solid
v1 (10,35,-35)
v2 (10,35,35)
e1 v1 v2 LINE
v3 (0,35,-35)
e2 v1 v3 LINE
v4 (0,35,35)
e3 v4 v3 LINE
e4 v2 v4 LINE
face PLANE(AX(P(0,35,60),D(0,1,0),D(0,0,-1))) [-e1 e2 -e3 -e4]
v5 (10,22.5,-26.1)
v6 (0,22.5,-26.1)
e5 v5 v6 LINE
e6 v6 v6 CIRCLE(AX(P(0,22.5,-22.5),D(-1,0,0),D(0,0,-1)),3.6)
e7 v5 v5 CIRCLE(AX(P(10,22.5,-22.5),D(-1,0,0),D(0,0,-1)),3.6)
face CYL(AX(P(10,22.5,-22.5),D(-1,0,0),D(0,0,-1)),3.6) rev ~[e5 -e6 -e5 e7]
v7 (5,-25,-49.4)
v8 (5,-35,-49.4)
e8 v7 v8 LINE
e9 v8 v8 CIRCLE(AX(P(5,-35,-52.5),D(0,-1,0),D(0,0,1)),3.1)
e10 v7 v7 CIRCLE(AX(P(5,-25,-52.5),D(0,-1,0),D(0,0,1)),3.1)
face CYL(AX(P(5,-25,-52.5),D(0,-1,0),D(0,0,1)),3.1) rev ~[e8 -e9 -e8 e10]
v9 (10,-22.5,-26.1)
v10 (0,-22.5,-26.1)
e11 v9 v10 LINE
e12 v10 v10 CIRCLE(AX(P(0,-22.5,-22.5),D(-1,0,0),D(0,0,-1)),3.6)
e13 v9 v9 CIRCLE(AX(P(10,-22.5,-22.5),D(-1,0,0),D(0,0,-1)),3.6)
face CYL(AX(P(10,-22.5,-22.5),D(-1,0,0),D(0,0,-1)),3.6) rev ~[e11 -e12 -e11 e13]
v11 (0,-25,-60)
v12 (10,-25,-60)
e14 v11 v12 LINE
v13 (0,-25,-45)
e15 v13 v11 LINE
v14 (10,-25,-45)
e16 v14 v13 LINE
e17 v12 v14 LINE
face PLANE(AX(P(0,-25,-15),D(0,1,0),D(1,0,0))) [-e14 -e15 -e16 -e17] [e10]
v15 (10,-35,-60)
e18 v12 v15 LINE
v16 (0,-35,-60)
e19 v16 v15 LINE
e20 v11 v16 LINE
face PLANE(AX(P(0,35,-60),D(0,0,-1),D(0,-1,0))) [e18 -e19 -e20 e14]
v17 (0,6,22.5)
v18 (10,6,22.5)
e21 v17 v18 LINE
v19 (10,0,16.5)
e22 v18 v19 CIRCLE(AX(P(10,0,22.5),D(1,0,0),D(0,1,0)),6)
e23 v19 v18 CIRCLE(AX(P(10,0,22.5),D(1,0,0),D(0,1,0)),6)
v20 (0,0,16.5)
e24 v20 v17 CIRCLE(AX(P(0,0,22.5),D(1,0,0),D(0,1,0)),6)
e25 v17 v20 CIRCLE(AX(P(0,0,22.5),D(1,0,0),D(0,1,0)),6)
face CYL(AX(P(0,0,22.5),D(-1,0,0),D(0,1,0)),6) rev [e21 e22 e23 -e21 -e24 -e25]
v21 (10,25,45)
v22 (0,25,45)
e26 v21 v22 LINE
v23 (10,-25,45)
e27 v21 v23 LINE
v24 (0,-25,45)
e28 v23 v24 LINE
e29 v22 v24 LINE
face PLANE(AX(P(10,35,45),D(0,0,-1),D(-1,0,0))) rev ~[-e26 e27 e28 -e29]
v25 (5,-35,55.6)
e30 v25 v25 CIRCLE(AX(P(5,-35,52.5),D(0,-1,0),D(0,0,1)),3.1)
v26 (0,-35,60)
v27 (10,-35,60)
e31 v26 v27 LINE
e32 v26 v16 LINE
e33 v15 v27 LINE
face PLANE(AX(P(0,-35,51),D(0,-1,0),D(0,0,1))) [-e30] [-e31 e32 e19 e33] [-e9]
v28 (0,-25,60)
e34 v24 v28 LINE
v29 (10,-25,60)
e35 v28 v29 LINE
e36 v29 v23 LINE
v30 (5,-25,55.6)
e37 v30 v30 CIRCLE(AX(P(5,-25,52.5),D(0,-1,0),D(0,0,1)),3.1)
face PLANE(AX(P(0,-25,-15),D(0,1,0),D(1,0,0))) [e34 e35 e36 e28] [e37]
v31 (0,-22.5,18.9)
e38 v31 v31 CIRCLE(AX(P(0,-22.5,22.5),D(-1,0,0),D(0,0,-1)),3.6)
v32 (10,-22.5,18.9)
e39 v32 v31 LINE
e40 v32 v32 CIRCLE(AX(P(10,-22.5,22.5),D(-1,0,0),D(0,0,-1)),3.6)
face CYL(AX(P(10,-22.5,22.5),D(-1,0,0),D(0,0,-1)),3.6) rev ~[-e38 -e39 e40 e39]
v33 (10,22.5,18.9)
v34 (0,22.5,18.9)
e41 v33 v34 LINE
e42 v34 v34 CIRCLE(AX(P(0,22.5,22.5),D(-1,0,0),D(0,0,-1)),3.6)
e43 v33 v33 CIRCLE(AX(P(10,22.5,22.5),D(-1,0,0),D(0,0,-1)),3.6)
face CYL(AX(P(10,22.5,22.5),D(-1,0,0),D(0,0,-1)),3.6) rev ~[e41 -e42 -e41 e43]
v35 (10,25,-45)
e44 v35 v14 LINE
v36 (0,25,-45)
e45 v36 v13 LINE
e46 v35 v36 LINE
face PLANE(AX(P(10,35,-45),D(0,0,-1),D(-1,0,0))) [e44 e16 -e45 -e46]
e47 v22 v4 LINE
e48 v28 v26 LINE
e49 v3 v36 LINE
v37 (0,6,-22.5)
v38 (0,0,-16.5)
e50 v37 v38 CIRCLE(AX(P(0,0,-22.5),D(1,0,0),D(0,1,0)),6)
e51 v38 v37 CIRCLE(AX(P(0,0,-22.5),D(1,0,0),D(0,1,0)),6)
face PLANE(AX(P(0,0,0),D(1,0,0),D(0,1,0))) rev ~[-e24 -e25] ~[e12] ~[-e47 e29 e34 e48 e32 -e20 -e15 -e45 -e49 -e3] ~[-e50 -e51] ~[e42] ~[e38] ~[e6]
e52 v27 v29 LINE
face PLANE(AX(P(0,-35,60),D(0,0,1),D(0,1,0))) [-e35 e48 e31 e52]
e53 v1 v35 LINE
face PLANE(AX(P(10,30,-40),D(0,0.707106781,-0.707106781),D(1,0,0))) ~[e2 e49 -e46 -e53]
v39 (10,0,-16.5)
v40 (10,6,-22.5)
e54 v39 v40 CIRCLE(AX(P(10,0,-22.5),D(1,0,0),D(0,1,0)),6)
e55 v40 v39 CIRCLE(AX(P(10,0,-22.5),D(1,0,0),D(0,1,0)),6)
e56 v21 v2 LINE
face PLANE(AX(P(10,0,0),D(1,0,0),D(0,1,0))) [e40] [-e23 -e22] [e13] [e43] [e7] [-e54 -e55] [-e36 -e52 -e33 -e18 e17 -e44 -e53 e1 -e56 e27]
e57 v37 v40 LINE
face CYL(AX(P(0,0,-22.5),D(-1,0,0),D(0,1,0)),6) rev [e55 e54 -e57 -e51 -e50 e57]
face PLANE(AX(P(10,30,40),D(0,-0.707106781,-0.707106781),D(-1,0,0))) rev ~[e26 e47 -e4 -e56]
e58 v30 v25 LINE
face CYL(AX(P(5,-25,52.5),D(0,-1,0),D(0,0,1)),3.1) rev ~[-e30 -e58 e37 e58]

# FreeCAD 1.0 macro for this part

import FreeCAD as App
import Part
import Sketcher
Q = App.Units.Quantity


def edges_at(feature, points):
    """Names of the edges that pass closest to the given points."""
    edges = feature.Shape.Edges
    near = lambda p: min(range(len(edges)), key=lambda i: edges[i].distToShape(Part.Vertex(*p))[0])
    return sorted({f"Edge{near(p) + 1}" for p in points})

doc = App.newDocument("Part")
params = doc.addObject("Spreadsheet::Sheet", "Params")
for row, (alias, value) in enumerate([
    ("sketch1_diameter", "12 mm"),
    ("sketch1_height", "120 mm"),
    ("pad1_length", "10 mm"),
    ("sketch2_height", "15 mm"),
    ("sketch2_width", "10 mm"),
    ("pocket1_length", "60 mm"),
    ("sketch3_diameter", "7.2 mm"),
    ("hole_diameter", "7.2 mm"),
    ("sketch4_diameter", "6.2 mm"),
    ("hole2_diameter", "6.2 mm"),
    ("chamfer_size", "10 mm"),
], start=1):
    params.set(f"A{row}", alias)
    params.set(f"B{row}", "=" + value)
    params.setAlias(f"B{row}", alias)

body = doc.addObject("PartDesign::Body", "Body")

sketch1 = doc.addObject("Sketcher::SketchObject", "Sketch")
body.addObject(sketch1)
sketch1.AttachmentSupport = (doc.YZ_Plane, [""])
sketch1.MapMode = "FlatFace"
sketch1.addGeometry([
    Part.LineSegment(App.Vector(-35, 60, 0), App.Vector(-35, -60, 0)),
    Part.LineSegment(App.Vector(-35, -60, 0), App.Vector(35, -60, 0)),
    Part.LineSegment(App.Vector(35, -60, 0), App.Vector(35, 60, 0)),
    Part.LineSegment(App.Vector(35, 60, 0), App.Vector(-35, 60, 0)),
    Part.Circle(App.Vector(0, -22, 0), App.Vector(0, 0, 1), 6),
    Part.Circle(App.Vector(0, 22, 0), App.Vector(0, 0, 1), 6),
], False)
sketch1.addConstraint([
    Sketcher.Constraint("Coincident", 0, 2, 1, 1),
    Sketcher.Constraint("Coincident", 1, 2, 2, 1),
    Sketcher.Constraint("Coincident", 2, 2, 3, 1),
    Sketcher.Constraint("Coincident", 3, 2, 0, 1),
    Sketcher.Constraint("Vertical", 0),
    Sketcher.Constraint("Horizontal", 1),
    Sketcher.Constraint("Vertical", 2),
    Sketcher.Constraint("Horizontal", 3),
    Sketcher.Constraint("Equal", 4, 5),
    Sketcher.Constraint("Symmetric", 4, 3, 5, 3, -1, 1),
    Sketcher.Constraint("Symmetric", 0, 2, 2, 2, -1, 1),
    Sketcher.Constraint("PointOnObject", 4, 3, -2),
    Sketcher.Constraint("Diameter", 4, Q("12 mm")),
    Sketcher.Constraint("DistanceY", 0, 2, 0, 1, Q("120 mm")),
    Sketcher.Constraint("DistanceX", 0, 2, -1, 1, Q("35 mm")),
    Sketcher.Constraint("DistanceY", 4, 3, 5, 3, Q("45 mm")),
])
sketch1.setExpression("Constraints[12]", "Params.sketch1_diameter")
sketch1.setExpression("Constraints[13]", "Params.sketch1_height")
pad1 = doc.addObject("PartDesign::Pad", "Pad")
body.addObject(pad1)
pad1.Profile = sketch1
pad1.setExpression("Length", "Params.pad1_length")

sketch2 = doc.addObject("Sketcher::SketchObject", "Sketch001")
body.addObject(sketch2)
sketch2.AttachmentSupport = (doc.XZ_Plane, [""])
sketch2.MapMode = "FlatFace"
sketch2.AttachmentOffset = App.Placement(App.Vector(0, 0, -35), App.Rotation())
sketch2.addGeometry([
    Part.LineSegment(App.Vector(10, -45, 0), App.Vector(10, -60, 0)),
    Part.LineSegment(App.Vector(10, -60, 0), App.Vector(0, -60, 0)),
    Part.LineSegment(App.Vector(0, -60, 0), App.Vector(0, -45, 0)),
    Part.LineSegment(App.Vector(0, -45, 0), App.Vector(10, -45, 0)),
    Part.LineSegment(App.Vector(10, 60, 0), App.Vector(10, 45, 0)),
    Part.LineSegment(App.Vector(10, 45, 0), App.Vector(0, 45, 0)),
    Part.LineSegment(App.Vector(0, 45, 0), App.Vector(0, 60, 0)),
    Part.LineSegment(App.Vector(0, 60, 0), App.Vector(10, 60, 0)),
], False)
sketch2.addConstraint([
    Sketcher.Constraint("Coincident", 0, 2, 1, 1),
    Sketcher.Constraint("Coincident", 1, 2, 2, 1),
    Sketcher.Constraint("Coincident", 2, 2, 3, 1),
    Sketcher.Constraint("Coincident", 3, 2, 0, 1),
    Sketcher.Constraint("Coincident", 4, 2, 5, 1),
    Sketcher.Constraint("Coincident", 5, 2, 6, 1),
    Sketcher.Constraint("Coincident", 6, 2, 7, 1),
    Sketcher.Constraint("Coincident", 7, 2, 4, 1),
    Sketcher.Constraint("Vertical", 0),
    Sketcher.Constraint("Horizontal", 1),
    Sketcher.Constraint("Vertical", 2),
    Sketcher.Constraint("Horizontal", 3),
    Sketcher.Constraint("Vertical", 4),
    Sketcher.Constraint("Horizontal", 5),
    Sketcher.Constraint("Vertical", 6),
    Sketcher.Constraint("Horizontal", 7),
    Sketcher.Constraint("Symmetric", 2, 2, 5, 2, -1, 1),
    Sketcher.Constraint("Symmetric", 1, 2, 6, 2, -1),
    Sketcher.Constraint("Vertical", 3, 2, 4, 2),
    Sketcher.Constraint("DistanceY", 0, 2, 0, 1, Q("15 mm")),
    Sketcher.Constraint("DistanceX", 1, 2, 1, 1, Q("10 mm")),
    Sketcher.Constraint("DistanceY", 0, 2, -1, 1, Q("60 mm")),
])
sketch2.setExpression("Constraints[19]", "Params.sketch2_height")
sketch2.setExpression("Constraints[20]", "Params.sketch2_width")
pocket1 = doc.addObject("PartDesign::Pocket", "Pocket")
body.addObject(pocket1)
pocket1.Profile = sketch2
pocket1.setExpression("Length", "Params.pocket1_length")
pocket1.Reversed = True

sketch3 = doc.addObject("Sketcher::SketchObject", "Sketch002")
body.addObject(sketch3)
sketch3.AttachmentSupport = (doc.YZ_Plane, [""])
sketch3.MapMode = "FlatFace"
sketch3.AttachmentOffset = App.Placement(App.Vector(0, 0, 10), App.Rotation())
sketch3.addGeometry([
    Part.Circle(App.Vector(22.5, 22.5, 0), App.Vector(0, 0, 1), 3.6),
    Part.Circle(App.Vector(-22.5, 22.5, 0), App.Vector(0, 0, 1), 3.6),
    Part.Circle(App.Vector(22.5, -22.5, 0), App.Vector(0, 0, 1), 3.6),
    Part.Circle(App.Vector(-22.5, -22.5, 0), App.Vector(0, 0, 1), 3.6),
], False)
sketch3.addConstraint([
    Sketcher.Constraint("Equal", 0, 1),
    Sketcher.Constraint("Equal", 1, 2),
    Sketcher.Constraint("Equal", 2, 3),
    Sketcher.Constraint("Symmetric", 1, 3, 2, 3, -1, 1),
    Sketcher.Constraint("Symmetric", 0, 3, 3, 3, -1, 1),
    Sketcher.Constraint("Symmetric", 0, 3, 1, 3, -2),
    Sketcher.Constraint("Diameter", 0, Q("7.2 mm")),
    Sketcher.Constraint("DistanceX", 1, 3, 0, 3, Q("45 mm")),
    Sketcher.Constraint("DistanceY", 2, 3, 0, 3, Q("45 mm")),
])
sketch3.setExpression("Constraints[6]", "Params.sketch3_diameter")
doc.recompute()
hole = doc.addObject("PartDesign::Hole", "Hole")
body.addObject(hole)
hole.Profile = sketch3
hole.ThreadType = "None"
hole.setExpression("Diameter", "Params.hole_diameter")
hole.DepthType = "ThroughAll"

sketch4 = doc.addObject("Sketcher::SketchObject", "Sketch003")
body.addObject(sketch4)
sketch4.AttachmentSupport = (doc.XZ_Plane, [""])
sketch4.MapMode = "FlatFace"
sketch4.AttachmentOffset = App.Placement(App.Vector(0, 0, 25), App.Rotation())
sketch4.addGeometry([
    Part.Circle(App.Vector(5, 52.5, 0), App.Vector(0, 0, 1), 3.1),
    Part.Circle(App.Vector(5, -52.5, 0), App.Vector(0, 0, 1), 3.1),
], False)
sketch4.addConstraint([
    Sketcher.Constraint("Equal", 0, 1),
    Sketcher.Constraint("Symmetric", 0, 3, 1, 3, -1),
    Sketcher.Constraint("Diameter", 0, Q("6.2 mm")),
    Sketcher.Constraint("DistanceX", -1, 1, 0, 3, Q("5 mm")),
    Sketcher.Constraint("DistanceY", 1, 3, 0, 3, Q("105 mm")),
])
sketch4.setExpression("Constraints[2]", "Params.sketch4_diameter")
doc.recompute()
hole2 = doc.addObject("PartDesign::Hole", "Hole001")
body.addObject(hole2)
hole2.Profile = sketch4
hole2.ThreadType = "None"
hole2.setExpression("Diameter", "Params.hole2_diameter")
hole2.DepthType = "ThroughAll"
hole2.Reversed = True
doc.recompute()

chamfer = doc.addObject("PartDesign::Chamfer", "Chamfer")
body.addObject(chamfer)
chamfer.Base = (hole2, edges_at(hole2, [(5, 35, -45), (5, 35, 45)]))
chamfer.setExpression("Size", "Params.chamfer_size")

doc.recompute()
